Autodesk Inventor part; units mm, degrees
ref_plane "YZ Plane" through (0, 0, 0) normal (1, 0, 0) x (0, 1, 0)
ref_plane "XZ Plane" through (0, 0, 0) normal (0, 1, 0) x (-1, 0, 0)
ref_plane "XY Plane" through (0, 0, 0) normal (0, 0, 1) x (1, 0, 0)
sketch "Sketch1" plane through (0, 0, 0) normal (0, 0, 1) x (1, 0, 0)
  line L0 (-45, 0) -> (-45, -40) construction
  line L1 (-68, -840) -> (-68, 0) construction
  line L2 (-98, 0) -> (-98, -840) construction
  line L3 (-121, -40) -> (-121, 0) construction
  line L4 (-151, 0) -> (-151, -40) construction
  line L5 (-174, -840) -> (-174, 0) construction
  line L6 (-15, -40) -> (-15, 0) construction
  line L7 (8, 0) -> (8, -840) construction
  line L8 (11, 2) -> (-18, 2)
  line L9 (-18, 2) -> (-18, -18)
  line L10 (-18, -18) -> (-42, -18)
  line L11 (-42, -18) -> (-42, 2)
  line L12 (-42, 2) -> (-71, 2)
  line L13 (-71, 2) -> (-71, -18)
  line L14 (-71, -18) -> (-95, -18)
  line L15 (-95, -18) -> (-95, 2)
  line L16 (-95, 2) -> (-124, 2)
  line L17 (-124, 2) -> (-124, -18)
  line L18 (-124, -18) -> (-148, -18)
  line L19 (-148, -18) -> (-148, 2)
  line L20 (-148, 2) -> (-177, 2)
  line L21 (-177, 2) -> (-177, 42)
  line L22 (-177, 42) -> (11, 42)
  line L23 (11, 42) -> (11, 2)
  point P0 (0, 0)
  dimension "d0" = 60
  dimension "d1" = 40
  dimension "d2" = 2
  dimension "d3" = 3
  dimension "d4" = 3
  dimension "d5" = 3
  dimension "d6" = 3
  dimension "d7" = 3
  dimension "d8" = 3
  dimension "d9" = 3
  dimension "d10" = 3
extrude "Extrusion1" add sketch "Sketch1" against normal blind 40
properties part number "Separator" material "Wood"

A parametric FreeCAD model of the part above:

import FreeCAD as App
import Part
import Sketcher

V = App.Vector
Q = App.Units.Quantity


def add_polygon(sketch, points):
    """Adds a closed chain of lines whose ends are joined by coincident constraints."""
    first, n = sketch.GeometryCount, len(points)
    for a, b in zip(points, points[1:] + points[:1]):
        sketch.addGeometry(Part.LineSegment(App.Vector(*a, 0), App.Vector(*b, 0)), False)
    for i in range(n):
        sketch.addConstraint(Sketcher.Constraint("Coincident", first + i, 2, first + (i + 1) % n, 1))

doc = App.newDocument("Part")
body = doc.addObject("PartDesign::Body", "Body")

# Sketch on XY plane
sketch1 = body.newObject("Sketcher::SketchObject", "Sketch")
sketch1.AttachmentSupport = (doc.getObject("XY_Plane"), [""])
sketch1.MapMode = "FlatFace"
add_polygon(sketch1, [(-18, 2), (11, 2), (11, 42), (-177, 42), (-177, 2), (-148, 2), (-148, -18), (-124, -18), (-124, 2), (-95, 2), (-95, -18), (-71, -18), (-71, 2), (-42, 2), (-42, -18), (-18, -18)])  # lines 0-15
sketch1.addConstraint([
    Sketcher.Constraint("Horizontal", 0),
    Sketcher.Constraint("Vertical", 1),
    Sketcher.Constraint("Horizontal", 2),
    Sketcher.Constraint("Vertical", 3),
    Sketcher.Constraint("Horizontal", 4),
    Sketcher.Constraint("Vertical", 5),
    Sketcher.Constraint("Horizontal", 6),
    Sketcher.Constraint("Vertical", 7),
    Sketcher.Constraint("Horizontal", 8),
    Sketcher.Constraint("Vertical", 9),
    Sketcher.Constraint("Horizontal", 10),
    Sketcher.Constraint("Vertical", 11),
    Sketcher.Constraint("Horizontal", 12),
    Sketcher.Constraint("Vertical", 13),
    Sketcher.Constraint("Horizontal", 14),
    Sketcher.Constraint("Vertical", 15),
    Sketcher.Constraint("Horizontal", 0, 2, 3, 2),
    Sketcher.Constraint("Horizontal", 4, 2, 7, 2),
    Sketcher.Constraint("Horizontal", 6, 2, 9, 2),
    Sketcher.Constraint("Horizontal", 8, 2, 11, 2),
    Sketcher.Constraint("Horizontal", 10, 2, 13, 2),
    Sketcher.Constraint("Equal", 0, 4),
    Sketcher.Constraint("Equal", 4, 8),
    Sketcher.Constraint("Equal", 6, 10),
    Sketcher.Constraint("Equal", 8, 12),
    Sketcher.Constraint("Equal", 10, 14),
    Sketcher.Constraint("DistanceY", 1, 1, 1, 2, Q("40 mm")),
    Sketcher.Constraint("DistanceY", -1, 1, 0, 2, Q("2 mm")),
    Sketcher.Constraint("DistanceY", 5, 2, 2, 2, Q("60 mm")),
    Sketcher.Constraint("DistanceX", 0, 1, 0, 2, Q("29 mm")),
    Sketcher.Constraint("DistanceX", 2, 2, 2, 1, Q("188 mm")),
    Sketcher.Constraint("DistanceX", -1, 1, 0, 2, Q("11 mm")),
])
pad1 = body.newObject("PartDesign::Pad", "Pad")
pad1.Profile = sketch1
pad1.Length = 40
pad1.Reversed = True

doc.recompute()
